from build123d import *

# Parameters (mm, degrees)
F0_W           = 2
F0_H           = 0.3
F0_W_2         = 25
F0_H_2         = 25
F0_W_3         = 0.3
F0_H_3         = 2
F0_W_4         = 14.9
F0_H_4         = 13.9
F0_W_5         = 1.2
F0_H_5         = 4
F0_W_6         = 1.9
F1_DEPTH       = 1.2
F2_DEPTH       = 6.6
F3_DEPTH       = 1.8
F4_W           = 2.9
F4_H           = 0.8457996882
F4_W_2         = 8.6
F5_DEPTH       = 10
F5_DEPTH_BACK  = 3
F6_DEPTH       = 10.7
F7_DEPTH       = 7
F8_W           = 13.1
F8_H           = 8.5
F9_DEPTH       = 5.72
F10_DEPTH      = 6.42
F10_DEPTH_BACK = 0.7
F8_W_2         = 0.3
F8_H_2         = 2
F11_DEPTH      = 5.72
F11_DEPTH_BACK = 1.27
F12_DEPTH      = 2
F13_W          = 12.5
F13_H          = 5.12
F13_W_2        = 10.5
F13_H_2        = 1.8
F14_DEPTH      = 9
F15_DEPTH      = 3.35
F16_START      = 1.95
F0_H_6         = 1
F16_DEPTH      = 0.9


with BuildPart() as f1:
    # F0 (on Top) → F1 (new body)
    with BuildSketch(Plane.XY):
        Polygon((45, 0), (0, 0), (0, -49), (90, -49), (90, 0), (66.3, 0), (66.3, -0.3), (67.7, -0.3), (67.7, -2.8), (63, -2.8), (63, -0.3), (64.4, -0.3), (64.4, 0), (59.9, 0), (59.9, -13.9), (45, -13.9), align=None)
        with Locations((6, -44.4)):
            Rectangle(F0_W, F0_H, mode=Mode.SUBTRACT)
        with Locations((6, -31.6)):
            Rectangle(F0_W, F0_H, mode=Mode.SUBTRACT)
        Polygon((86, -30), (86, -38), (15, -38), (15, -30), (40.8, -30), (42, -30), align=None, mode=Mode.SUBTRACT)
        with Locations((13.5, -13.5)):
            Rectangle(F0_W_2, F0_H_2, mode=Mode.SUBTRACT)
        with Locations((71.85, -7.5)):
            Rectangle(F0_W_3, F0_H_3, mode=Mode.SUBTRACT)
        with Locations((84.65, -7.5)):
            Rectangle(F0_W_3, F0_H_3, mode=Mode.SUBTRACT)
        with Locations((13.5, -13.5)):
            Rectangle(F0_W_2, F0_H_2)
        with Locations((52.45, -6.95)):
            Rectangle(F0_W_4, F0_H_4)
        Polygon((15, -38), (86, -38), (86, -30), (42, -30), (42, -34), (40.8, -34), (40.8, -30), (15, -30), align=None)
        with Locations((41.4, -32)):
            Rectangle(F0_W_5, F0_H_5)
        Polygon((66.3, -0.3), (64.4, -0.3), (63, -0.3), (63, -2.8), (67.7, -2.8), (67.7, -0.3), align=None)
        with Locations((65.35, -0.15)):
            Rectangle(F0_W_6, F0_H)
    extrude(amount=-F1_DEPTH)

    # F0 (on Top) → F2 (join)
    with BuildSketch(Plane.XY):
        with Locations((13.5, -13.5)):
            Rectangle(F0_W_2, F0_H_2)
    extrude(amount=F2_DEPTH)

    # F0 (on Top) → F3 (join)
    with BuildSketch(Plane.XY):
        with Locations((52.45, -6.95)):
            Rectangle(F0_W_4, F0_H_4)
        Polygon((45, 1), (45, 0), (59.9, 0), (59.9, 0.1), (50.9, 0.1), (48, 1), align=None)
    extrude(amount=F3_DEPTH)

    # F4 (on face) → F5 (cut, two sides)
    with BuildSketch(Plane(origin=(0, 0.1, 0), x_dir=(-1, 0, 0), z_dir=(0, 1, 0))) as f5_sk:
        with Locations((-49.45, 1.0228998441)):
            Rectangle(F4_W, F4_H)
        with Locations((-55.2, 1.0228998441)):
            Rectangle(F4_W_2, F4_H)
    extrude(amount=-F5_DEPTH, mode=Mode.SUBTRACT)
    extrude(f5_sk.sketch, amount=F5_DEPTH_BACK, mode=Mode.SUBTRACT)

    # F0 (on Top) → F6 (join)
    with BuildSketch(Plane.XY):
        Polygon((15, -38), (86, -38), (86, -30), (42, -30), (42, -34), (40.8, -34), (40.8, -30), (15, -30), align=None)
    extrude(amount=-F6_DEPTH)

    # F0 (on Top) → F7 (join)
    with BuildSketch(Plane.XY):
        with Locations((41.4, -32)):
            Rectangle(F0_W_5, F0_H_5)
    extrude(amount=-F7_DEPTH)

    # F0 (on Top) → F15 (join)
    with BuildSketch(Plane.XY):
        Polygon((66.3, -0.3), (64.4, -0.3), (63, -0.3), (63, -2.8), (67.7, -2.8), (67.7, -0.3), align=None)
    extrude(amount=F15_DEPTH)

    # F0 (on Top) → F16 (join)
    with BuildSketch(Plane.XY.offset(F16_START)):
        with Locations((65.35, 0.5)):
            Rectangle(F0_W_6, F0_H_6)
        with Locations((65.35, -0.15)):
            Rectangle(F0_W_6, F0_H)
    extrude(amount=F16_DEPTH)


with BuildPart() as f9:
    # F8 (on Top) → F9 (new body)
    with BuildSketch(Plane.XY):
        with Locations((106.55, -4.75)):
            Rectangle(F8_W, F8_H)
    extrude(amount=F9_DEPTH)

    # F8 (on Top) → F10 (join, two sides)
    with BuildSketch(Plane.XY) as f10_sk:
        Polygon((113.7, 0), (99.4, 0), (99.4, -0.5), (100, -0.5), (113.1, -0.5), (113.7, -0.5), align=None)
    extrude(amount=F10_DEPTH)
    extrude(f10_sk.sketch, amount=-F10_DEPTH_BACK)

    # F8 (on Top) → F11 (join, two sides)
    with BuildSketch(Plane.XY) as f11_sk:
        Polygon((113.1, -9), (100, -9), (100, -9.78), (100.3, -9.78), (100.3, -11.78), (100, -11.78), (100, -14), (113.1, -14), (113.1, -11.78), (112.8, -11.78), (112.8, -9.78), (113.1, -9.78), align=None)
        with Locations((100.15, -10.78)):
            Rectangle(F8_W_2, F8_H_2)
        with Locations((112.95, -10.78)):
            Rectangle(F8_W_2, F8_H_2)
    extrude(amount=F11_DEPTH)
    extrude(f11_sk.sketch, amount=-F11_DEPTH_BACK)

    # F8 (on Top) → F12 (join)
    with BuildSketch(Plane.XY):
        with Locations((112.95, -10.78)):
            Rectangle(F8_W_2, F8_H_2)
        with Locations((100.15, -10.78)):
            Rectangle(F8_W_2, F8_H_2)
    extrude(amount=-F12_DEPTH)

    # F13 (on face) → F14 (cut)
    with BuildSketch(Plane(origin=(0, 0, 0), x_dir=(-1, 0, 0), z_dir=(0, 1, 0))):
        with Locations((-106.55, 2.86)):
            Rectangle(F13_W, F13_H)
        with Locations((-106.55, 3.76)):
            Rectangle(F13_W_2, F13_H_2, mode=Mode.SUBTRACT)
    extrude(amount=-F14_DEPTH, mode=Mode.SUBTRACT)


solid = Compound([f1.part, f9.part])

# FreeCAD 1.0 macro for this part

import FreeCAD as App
import Part
import Sketcher

doc = App.newDocument("Part")
params = doc.addObject("Spreadsheet::Sheet", "Params")
for row, (alias, value) in enumerate([
    ("sketch1_width", "90 mm"),
    ("sketch1_width2", "2 mm"),
    ("sketch1_height", "49 mm"),
    ("sketch1_width3", "0.3 mm"),
    ("pad1_length", "1.2 mm"),
    ("sketch2_width", "25 mm"),
    ("pad2_length", "6.6 mm"),
    ("sketch3_width", "9 mm"),
    ("sketch3_width2", "3 mm"),
    ("sketch3_height", "14 mm"),
    ("sketch3_width3", "14.9 mm"),
    ("pad3_length", "1.8 mm"),
    ("sketch4_width", "11.5 mm"),
    ("pocket1_length", "10 mm"),
    ("pocket1_length2", "3 mm"),
    ("sketch5_width", "71 mm"),
    ("sketch5_width2", "44 mm"),
    ("sketch5_height", "8 mm"),
    ("sketch5_height2", "4 mm"),
    ("sketch5_width3", "1.2 mm"),
    ("pad4_length", "10.7 mm"),
    ("sketch6_height", "4 mm"),
    ("sketch6_width", "1.2 mm"),
    ("pad5_length", "7 mm"),
    ("sketch7_width", "4.7 mm"),
    ("sketch7_height", "2.5 mm"),
    ("pad6_length", "3.35 mm"),
    ("sketch8_width", "1.9 mm"),
    ("sketch8_height", "1.3 mm"),
    ("pad7_length", "0.9 mm"),
    ("sketch9_width", "13.1 mm"),
    ("sketch9_height", "8.5 mm"),
    ("pad8_length", "5.72 mm"),
    ("sketch10_width", "14.3 mm"),
    ("sketch10_height", "0.5 mm"),
    ("pad9_length", "6.42 mm"),
    ("pad9_length2", "0.7 mm"),
    ("sketch11_height", "5 mm"),
    ("sketch11_width", "13.1 mm"),
    ("pad10_length", "5.72 mm"),
    ("pad10_length2", "1.27 mm"),
    ("sketch12_height", "2 mm"),
    ("sketch12_width", "0.3 mm"),
    ("pad11_length", "2 mm"),
    ("sketch13_width", "12.5 mm"),
    ("sketch13_width2", "10.5 mm"),
    ("sketch13_height", "1.8 mm"),
    ("sketch13_height2", "5.12 mm"),
    ("pocket2_length", "9 mm"),
], start=1):
    params.set(f"A{row}", alias)
    params.set(f"B{row}", "=" + value)
    params.setAlias(f"B{row}", alias)

body = doc.addObject("PartDesign::Body", "Body")

sketch1 = body.newObject("Sketcher::SketchObject", "Sketch")
sketch1.AttachmentSupport = (doc.getObject("XY_Plane"), [""])
sketch1.MapMode = "FlatFace"
sketch1.addGeometry(Part.LineSegment(App.Vector(0, 0, 0), App.Vector(0, -49, 0)), False)
sketch1.addGeometry(Part.LineSegment(App.Vector(0, -49, 0), App.Vector(90, -49, 0)), False)
sketch1.addGeometry(Part.LineSegment(App.Vector(90, -49, 0), App.Vector(90, 0, 0)), False)
sketch1.addGeometry(Part.LineSegment(App.Vector(90, 0, 0), App.Vector(0, 0, 0)), False)
sketch1.addGeometry(Part.LineSegment(App.Vector(7, -44.55, 0), App.Vector(5, -44.55, 0)), False)
sketch1.addGeometry(Part.LineSegment(App.Vector(5, -44.55, 0), App.Vector(5, -44.25, 0)), False)
sketch1.addGeometry(Part.LineSegment(App.Vector(5, -44.25, 0), App.Vector(7, -44.25, 0)), False)
sketch1.addGeometry(Part.LineSegment(App.Vector(7, -44.25, 0), App.Vector(7, -44.55, 0)), False)
sketch1.addGeometry(Part.LineSegment(App.Vector(7, -31.75, 0), App.Vector(5, -31.75, 0)), False)
sketch1.addGeometry(Part.LineSegment(App.Vector(5, -31.75, 0), App.Vector(5, -31.45, 0)), False)
sketch1.addGeometry(Part.LineSegment(App.Vector(5, -31.45, 0), App.Vector(7, -31.45, 0)), False)
sketch1.addGeometry(Part.LineSegment(App.Vector(7, -31.45, 0), App.Vector(7, -31.75, 0)), False)
sketch1.addGeometry(Part.LineSegment(App.Vector(72, -8.5, 0), App.Vector(71.7, -8.5, 0)), False)
sketch1.addGeometry(Part.LineSegment(App.Vector(71.7, -8.5, 0), App.Vector(71.7, -6.5, 0)), False)
sketch1.addGeometry(Part.LineSegment(App.Vector(71.7, -6.5, 0), App.Vector(72, -6.5, 0)), False)
sketch1.addGeometry(Part.LineSegment(App.Vector(72, -6.5, 0), App.Vector(72, -8.5, 0)), False)
sketch1.addGeometry(Part.LineSegment(App.Vector(84.8, -8.5, 0), App.Vector(84.5, -8.5, 0)), False)
sketch1.addGeometry(Part.LineSegment(App.Vector(84.5, -8.5, 0), App.Vector(84.5, -6.5, 0)), False)
sketch1.addGeometry(Part.LineSegment(App.Vector(84.5, -6.5, 0), App.Vector(84.8, -6.5, 0)), False)
sketch1.addGeometry(Part.LineSegment(App.Vector(84.8, -6.5, 0), App.Vector(84.8, -8.5, 0)), False)
sketch1.addConstraint(Sketcher.Constraint("Coincident", 0, 2, 1, 1))
sketch1.addConstraint(Sketcher.Constraint("Coincident", 1, 2, 2, 1))
sketch1.addConstraint(Sketcher.Constraint("Coincident", 2, 2, 3, 1))
sketch1.addConstraint(Sketcher.Constraint("Coincident", 3, 2, 0, 1))
sketch1.addConstraint(Sketcher.Constraint("Coincident", 4, 2, 5, 1))
sketch1.addConstraint(Sketcher.Constraint("Coincident", 5, 2, 6, 1))
sketch1.addConstraint(Sketcher.Constraint("Coincident", 6, 2, 7, 1))
sketch1.addConstraint(Sketcher.Constraint("Coincident", 7, 2, 4, 1))
sketch1.addConstraint(Sketcher.Constraint("Coincident", 8, 2, 9, 1))
sketch1.addConstraint(Sketcher.Constraint("Coincident", 9, 2, 10, 1))
sketch1.addConstraint(Sketcher.Constraint("Coincident", 10, 2, 11, 1))
sketch1.addConstraint(Sketcher.Constraint("Coincident", 11, 2, 8, 1))
sketch1.addConstraint(Sketcher.Constraint("Coincident", 12, 2, 13, 1))
sketch1.addConstraint(Sketcher.Constraint("Coincident", 13, 2, 14, 1))
sketch1.addConstraint(Sketcher.Constraint("Coincident", 14, 2, 15, 1))
sketch1.addConstraint(Sketcher.Constraint("Coincident", 15, 2, 12, 1))
sketch1.addConstraint(Sketcher.Constraint("Coincident", 16, 2, 17, 1))
sketch1.addConstraint(Sketcher.Constraint("Coincident", 17, 2, 18, 1))
sketch1.addConstraint(Sketcher.Constraint("Coincident", 18, 2, 19, 1))
sketch1.addConstraint(Sketcher.Constraint("Coincident", 19, 2, 16, 1))
sketch1.addConstraint(Sketcher.Constraint("Vertical", 0))
sketch1.addConstraint(Sketcher.Constraint("Horizontal", 1))
sketch1.addConstraint(Sketcher.Constraint("Vertical", 2))
sketch1.addConstraint(Sketcher.Constraint("Horizontal", 3))
sketch1.addConstraint(Sketcher.Constraint("Horizontal", 4))
sketch1.addConstraint(Sketcher.Constraint("Vertical", 5))
sketch1.addConstraint(Sketcher.Constraint("Horizontal", 6))
sketch1.addConstraint(Sketcher.Constraint("Vertical", 7))
sketch1.addConstraint(Sketcher.Constraint("Horizontal", 8))
sketch1.addConstraint(Sketcher.Constraint("Vertical", 9))
sketch1.addConstraint(Sketcher.Constraint("Horizontal", 10))
sketch1.addConstraint(Sketcher.Constraint("Vertical", 11))
sketch1.addConstraint(Sketcher.Constraint("Horizontal", 12))
sketch1.addConstraint(Sketcher.Constraint("Vertical", 13))
sketch1.addConstraint(Sketcher.Constraint("Horizontal", 14))
sketch1.addConstraint(Sketcher.Constraint("Vertical", 15))
sketch1.addConstraint(Sketcher.Constraint("Horizontal", 16))
sketch1.addConstraint(Sketcher.Constraint("Vertical", 17))
sketch1.addConstraint(Sketcher.Constraint("Horizontal", 18))
sketch1.addConstraint(Sketcher.Constraint("Vertical", 19))
sketch1.addConstraint(Sketcher.Constraint("Coincident", 3, 2, -1, 1))
sketch1.addConstraint(Sketcher.Constraint("Horizontal", 15, 2, 16, 2))
sketch1.addConstraint(Sketcher.Constraint("Horizontal", 14, 2, 17, 2))
sketch1.addConstraint(Sketcher.Constraint("Vertical", 5, 2, 8, 2))
sketch1.addConstraint(Sketcher.Constraint("Vertical", 7, 2, 10, 2))
sketch1.addConstraint(Sketcher.Constraint("Equal", 14, 16))
sketch1.addConstraint(Sketcher.Constraint("Equal", 18, 5))
sketch1.addConstraint(Sketcher.Constraint("Equal", 7, 9))
sketch1.addConstraint(Sketcher.Constraint("Equal", 10, 13))
sketch1.addConstraint(Sketcher.Constraint("DistanceX", 1, 1, 1, 2, 90.0))
sketch1.addConstraint(Sketcher.Constraint("DistanceX", 4, 2, 4, 1, 2.0))
sketch1.addConstraint(Sketcher.Constraint("DistanceY", 0, 2, 0, 1, 49.0))
sketch1.addConstraint(Sketcher.Constraint("DistanceX", 12, 2, 12, 1, 0.3))
sketch1.addConstraint(Sketcher.Constraint("DistanceX", -1, 1, 4, 2, 5.0))
sketch1.addConstraint(Sketcher.Constraint("DistanceX", -1, 1, 14, 2, 72.0))
sketch1.addConstraint(Sketcher.Constraint("DistanceY", 12, 2, -1, 1, 8.5))
sketch1.addConstraint(Sketcher.Constraint("DistanceX", -1, 1, 16, 2, 84.5))
sketch1.addConstraint(Sketcher.Constraint("DistanceY", 5, 2, 8, 2, 12.5))
sketch1.addConstraint(Sketcher.Constraint("DistanceY", 4, 2, -1, 1, 44.55))
sketch1.setExpression("Constraints[49]", "Params.sketch1_width")
sketch1.setExpression("Constraints[50]", "Params.sketch1_width2")
sketch1.setExpression("Constraints[51]", "Params.sketch1_height")
sketch1.setExpression("Constraints[52]", "Params.sketch1_width3")
pad1 = body.newObject("PartDesign::Pad", "Pad")
pad1.Profile = sketch1
pad1.setExpression("Length", "Params.pad1_length")
pad1.Reversed = True

sketch2 = body.newObject("Sketcher::SketchObject", "Sketch001")
sketch2.AttachmentSupport = (doc.getObject("XY_Plane"), [""])
sketch2.MapMode = "FlatFace"
sketch2.addGeometry(Part.LineSegment(App.Vector(1, -1, 0), App.Vector(1, -26, 0)), False)
sketch2.addGeometry(Part.LineSegment(App.Vector(1, -26, 0), App.Vector(26, -26, 0)), False)
sketch2.addGeometry(Part.LineSegment(App.Vector(26, -26, 0), App.Vector(26, -1, 0)), False)
sketch2.addGeometry(Part.LineSegment(App.Vector(26, -1, 0), App.Vector(1, -1, 0)), False)
sketch2.addConstraint(Sketcher.Constraint("Coincident", 0, 2, 1, 1))
sketch2.addConstraint(Sketcher.Constraint("Coincident", 1, 2, 2, 1))
sketch2.addConstraint(Sketcher.Constraint("Coincident", 2, 2, 3, 1))
sketch2.addConstraint(Sketcher.Constraint("Coincident", 3, 2, 0, 1))
sketch2.addConstraint(Sketcher.Constraint("Vertical", 0))
sketch2.addConstraint(Sketcher.Constraint("Horizontal", 1))
sketch2.addConstraint(Sketcher.Constraint("Vertical", 2))
sketch2.addConstraint(Sketcher.Constraint("Horizontal", 3))
sketch2.addConstraint(Sketcher.Constraint("Equal", 3, 0))
sketch2.addConstraint(Sketcher.Constraint("DistanceX", 1, 1, 1, 2, 25.0))
sketch2.addConstraint(Sketcher.Constraint("DistanceX", -1, 1, 0, 2, 1.0))
sketch2.addConstraint(Sketcher.Constraint("DistanceY", 0, 2, -1, 1, 26.0))
sketch2.setExpression("Constraints[9]", "Params.sketch2_width")
pad2 = body.newObject("PartDesign::Pad", "Pad001")
pad2.Profile = sketch2
pad2.setExpression("Length", "Params.pad2_length")

sketch3 = body.newObject("Sketcher::SketchObject", "Sketch002")
sketch3.AttachmentSupport = (doc.getObject("XY_Plane"), [""])
sketch3.MapMode = "FlatFace"
sketch3.addGeometry(Part.LineSegment(App.Vector(45, -13.9, 0), App.Vector(59.9, -13.9, 0)), False)
sketch3.addGeometry(Part.LineSegment(App.Vector(59.9, -13.9, 0), App.Vector(59.9, 0.1, 0)), False)
sketch3.addGeometry(Part.LineSegment(App.Vector(59.9, 0.1, 0), App.Vector(50.9, 0.1, 0)), False)
sketch3.addGeometry(Part.LineSegment(App.Vector(50.9, 0.1, 0), App.Vector(48, 1, 0)), False)
sketch3.addGeometry(Part.LineSegment(App.Vector(48, 1, 0), App.Vector(45, 1, 0)), False)
sketch3.addGeometry(Part.LineSegment(App.Vector(45, 1, 0), App.Vector(45, -13.9, 0)), False)
sketch3.addConstraint(Sketcher.Constraint("Coincident", 0, 2, 1, 1))
sketch3.addConstraint(Sketcher.Constraint("Coincident", 1, 2, 2, 1))
sketch3.addConstraint(Sketcher.Constraint("Coincident", 2, 2, 3, 1))
sketch3.addConstraint(Sketcher.Constraint("Coincident", 3, 2, 4, 1))
sketch3.addConstraint(Sketcher.Constraint("Coincident", 4, 2, 5, 1))
sketch3.addConstraint(Sketcher.Constraint("Coincident", 5, 2, 0, 1))
sketch3.addConstraint(Sketcher.Constraint("Horizontal", 0))
sketch3.addConstraint(Sketcher.Constraint("Vertical", 1))
sketch3.addConstraint(Sketcher.Constraint("Horizontal", 2))
sketch3.addConstraint(Sketcher.Constraint("Horizontal", 4))
sketch3.addConstraint(Sketcher.Constraint("Vertical", 5))
sketch3.addConstraint(Sketcher.Constraint("Equal", 0, 5))
sketch3.addConstraint(Sketcher.Constraint("DistanceX", 2, 2, 2, 1, 9.0))
sketch3.addConstraint(Sketcher.Constraint("DistanceX", 4, 2, 4, 1, 3.0))
sketch3.addConstraint(Sketcher.Constraint("DistanceY", 1, 1, 1, 2, 14.0))
sketch3.addConstraint(Sketcher.Constraint("DistanceX", 0, 1, 0, 2, 14.9))
sketch3.addConstraint(Sketcher.Constraint("DistanceX", -1, 1, 3, 2, 48.0))
sketch3.addConstraint(Sketcher.Constraint("DistanceY", -1, 1, 3, 2, 1.0))
sketch3.setExpression("Constraints[12]", "Params.sketch3_width")
sketch3.setExpression("Constraints[13]", "Params.sketch3_width2")
sketch3.setExpression("Constraints[14]", "Params.sketch3_height")
sketch3.setExpression("Constraints[15]", "Params.sketch3_width3")
pad3 = body.newObject("PartDesign::Pad", "Pad002")
pad3.Profile = sketch3
pad3.setExpression("Length", "Params.pad3_length")

sketch4 = body.newObject("Sketcher::SketchObject", "Sketch003")
sketch4.AttachmentSupport = (doc.getObject("XZ_Plane"), [""])
sketch4.MapMode = "FlatFace"
sketch4.AttachmentOffset = App.Placement(App.Vector(0, 0, -0.1), App.Rotation())
sketch4.addGeometry(Part.LineSegment(App.Vector(48, 0.6, 0), App.Vector(48, 1.4, 0)), False)
sketch4.addGeometry(Part.LineSegment(App.Vector(48, 1.4, 0), App.Vector(59.5, 1.4, 0)), False)
sketch4.addGeometry(Part.LineSegment(App.Vector(59.5, 1.4, 0), App.Vector(59.5, 0.6, 0)), False)
sketch4.addGeometry(Part.LineSegment(App.Vector(59.5, 0.6, 0), App.Vector(48, 0.6, 0)), False)
sketch4.addConstraint(Sketcher.Constraint("Coincident", 0, 2, 1, 1))
sketch4.addConstraint(Sketcher.Constraint("Coincident", 1, 2, 2, 1))
sketch4.addConstraint(Sketcher.Constraint("Coincident", 2, 2, 3, 1))
sketch4.addConstraint(Sketcher.Constraint("Coincident", 3, 2, 0, 1))
sketch4.addConstraint(Sketcher.Constraint("Vertical", 0))
sketch4.addConstraint(Sketcher.Constraint("Horizontal", 1))
sketch4.addConstraint(Sketcher.Constraint("Vertical", 2))
sketch4.addConstraint(Sketcher.Constraint("Horizontal", 3))
sketch4.addConstraint(Sketcher.Constraint("DistanceX", 1, 1, 1, 2, 11.5))
sketch4.addConstraint(Sketcher.Constraint("DistanceX", -1, 1, 0, 2, 48.0))
sketch4.addConstraint(Sketcher.Constraint("DistanceY", -1, 1, 2, 2, 0.6))
sketch4.addConstraint(Sketcher.Constraint("DistanceY", 0, 1, 0, 2, 0.8458))
sketch4.setExpression("Constraints[8]", "Params.sketch4_width")
pocket1 = body.newObject("PartDesign::Pocket", "Pocket")
pocket1.Profile = sketch4
pocket1.Type = "TwoLengths"
pocket1.setExpression("Length", "Params.pocket1_length")
pocket1.setExpression("Length2", "Params.pocket1_length2")
pocket1.Reversed = True

sketch5 = body.newObject("Sketcher::SketchObject", "Sketch004")
sketch5.AttachmentSupport = (doc.getObject("XY_Plane"), [""])
sketch5.MapMode = "FlatFace"
sketch5.addGeometry(Part.LineSegment(App.Vector(15, -38, 0), App.Vector(86, -38, 0)), False)
sketch5.addGeometry(Part.LineSegment(App.Vector(86, -38, 0), App.Vector(86, -30, 0)), False)
sketch5.addGeometry(Part.LineSegment(App.Vector(86, -30, 0), App.Vector(42, -30, 0)), False)
sketch5.addGeometry(Part.LineSegment(App.Vector(42, -30, 0), App.Vector(42, -34, 0)), False)
sketch5.addGeometry(Part.LineSegment(App.Vector(42, -34, 0), App.Vector(40.8, -34, 0)), False)
sketch5.addGeometry(Part.LineSegment(App.Vector(40.8, -34, 0), App.Vector(40.8, -30, 0)), False)
sketch5.addGeometry(Part.LineSegment(App.Vector(40.8, -30, 0), App.Vector(15, -30, 0)), False)
sketch5.addGeometry(Part.LineSegment(App.Vector(15, -30, 0), App.Vector(15, -38, 0)), False)
sketch5.addConstraint(Sketcher.Constraint("Coincident", 0, 2, 1, 1))
sketch5.addConstraint(Sketcher.Constraint("Coincident", 1, 2, 2, 1))
sketch5.addConstraint(Sketcher.Constraint("Coincident", 2, 2, 3, 1))
sketch5.addConstraint(Sketcher.Constraint("Coincident", 3, 2, 4, 1))
sketch5.addConstraint(Sketcher.Constraint("Coincident", 4, 2, 5, 1))
sketch5.addConstraint(Sketcher.Constraint("Coincident", 5, 2, 6, 1))
sketch5.addConstraint(Sketcher.Constraint("Coincident", 6, 2, 7, 1))
sketch5.addConstraint(Sketcher.Constraint("Coincident", 7, 2, 0, 1))
sketch5.addConstraint(Sketcher.Constraint("Horizontal", 0))
sketch5.addConstraint(Sketcher.Constraint("Vertical", 1))
sketch5.addConstraint(Sketcher.Constraint("Horizontal", 2))
sketch5.addConstraint(Sketcher.Constraint("Vertical", 3))
sketch5.addConstraint(Sketcher.Constraint("Horizontal", 4))
sketch5.addConstraint(Sketcher.Constraint("Vertical", 5))
sketch5.addConstraint(Sketcher.Constraint("Horizontal", 6))
sketch5.addConstraint(Sketcher.Constraint("Vertical", 7))
sketch5.addConstraint(Sketcher.Constraint("Horizontal", 2, 2, 5, 2))
sketch5.addConstraint(Sketcher.Constraint("DistanceX", 0, 1, 0, 2, 71.0))
sketch5.addConstraint(Sketcher.Constraint("DistanceX", 2, 2, 2, 1, 44.0))
sketch5.addConstraint(Sketcher.Constraint("DistanceY", 1, 1, 1, 2, 8.0))
sketch5.addConstraint(Sketcher.Constraint("DistanceY", 3, 2, 3, 1, 4.0))
sketch5.addConstraint(Sketcher.Constraint("DistanceX", 4, 2, 4, 1, 1.2))
sketch5.addConstraint(Sketcher.Constraint("DistanceX", -1, 1, 0, 2, 86.0))
sketch5.addConstraint(Sketcher.Constraint("DistanceY", 0, 2, -1, 1, 38.0))
sketch5.setExpression("Constraints[17]", "Params.sketch5_width")
sketch5.setExpression("Constraints[18]", "Params.sketch5_width2")
sketch5.setExpression("Constraints[19]", "Params.sketch5_height")
sketch5.setExpression("Constraints[20]", "Params.sketch5_height2")
sketch5.setExpression("Constraints[21]", "Params.sketch5_width3")
pad4 = body.newObject("PartDesign::Pad", "Pad003")
pad4.Profile = sketch5
pad4.setExpression("Length", "Params.pad4_length")
pad4.Reversed = True

sketch6 = body.newObject("Sketcher::SketchObject", "Sketch005")
sketch6.AttachmentSupport = (doc.getObject("XY_Plane"), [""])
sketch6.MapMode = "FlatFace"
sketch6.addGeometry(Part.LineSegment(App.Vector(40.8, -30, 0), App.Vector(40.8, -34, 0)), False)
sketch6.addGeometry(Part.LineSegment(App.Vector(40.8, -34, 0), App.Vector(42, -34, 0)), False)
sketch6.addGeometry(Part.LineSegment(App.Vector(42, -34, 0), App.Vector(42, -30, 0)), False)
sketch6.addGeometry(Part.LineSegment(App.Vector(42, -30, 0), App.Vector(40.8, -30, 0)), False)
sketch6.addConstraint(Sketcher.Constraint("Coincident", 0, 2, 1, 1))
sketch6.addConstraint(Sketcher.Constraint("Coincident", 1, 2, 2, 1))
sketch6.addConstraint(Sketcher.Constraint("Coincident", 2, 2, 3, 1))
sketch6.addConstraint(Sketcher.Constraint("Coincident", 3, 2, 0, 1))
sketch6.addConstraint(Sketcher.Constraint("Vertical", 0))
sketch6.addConstraint(Sketcher.Constraint("Horizontal", 1))
sketch6.addConstraint(Sketcher.Constraint("Vertical", 2))
sketch6.addConstraint(Sketcher.Constraint("Horizontal", 3))
sketch6.addConstraint(Sketcher.Constraint("DistanceY", 0, 2, 0, 1, 4.0))
sketch6.addConstraint(Sketcher.Constraint("DistanceX", 1, 1, 1, 2, 1.2))
sketch6.addConstraint(Sketcher.Constraint("DistanceY", 0, 2, -1, 1, 34.0))
sketch6.addConstraint(Sketcher.Constraint("DistanceX", -1, 1, 1, 2, 42.0))
sketch6.setExpression("Constraints[8]", "Params.sketch6_height")
sketch6.setExpression("Constraints[9]", "Params.sketch6_width")
pad5 = body.newObject("PartDesign::Pad", "Pad004")
pad5.Profile = sketch6
pad5.setExpression("Length", "Params.pad5_length")
pad5.Reversed = True

sketch7 = body.newObject("Sketcher::SketchObject", "Sketch006")
sketch7.AttachmentSupport = (doc.getObject("XY_Plane"), [""])
sketch7.MapMode = "FlatFace"
sketch7.addGeometry(Part.LineSegment(App.Vector(63, -0.3, 0), App.Vector(63, -2.8, 0)), False)
sketch7.addGeometry(Part.LineSegment(App.Vector(63, -2.8, 0), App.Vector(67.7, -2.8, 0)), False)
sketch7.addGeometry(Part.LineSegment(App.Vector(67.7, -2.8, 0), App.Vector(67.7, -0.3, 0)), False)
sketch7.addGeometry(Part.LineSegment(App.Vector(67.7, -0.3, 0), App.Vector(63, -0.3, 0)), False)
sketch7.addConstraint(Sketcher.Constraint("Coincident", 0, 2, 1, 1))
sketch7.addConstraint(Sketcher.Constraint("Coincident", 1, 2, 2, 1))
sketch7.addConstraint(Sketcher.Constraint("Coincident", 2, 2, 3, 1))
sketch7.addConstraint(Sketcher.Constraint("Coincident", 3, 2, 0, 1))
sketch7.addConstraint(Sketcher.Constraint("Vertical", 0))
sketch7.addConstraint(Sketcher.Constraint("Horizontal", 1))
sketch7.addConstraint(Sketcher.Constraint("Vertical", 2))
sketch7.addConstraint(Sketcher.Constraint("Horizontal", 3))
sketch7.addConstraint(Sketcher.Constraint("DistanceX", 1, 1, 1, 2, 4.7))
sketch7.addConstraint(Sketcher.Constraint("DistanceY", 0, 2, 0, 1, 2.5))
sketch7.addConstraint(Sketcher.Constraint("DistanceX", -1, 1, 0, 2, 63.0))
sketch7.addConstraint(Sketcher.Constraint("DistanceY", 0, 2, -1, 1, 2.8))
sketch7.setExpression("Constraints[8]", "Params.sketch7_width")
sketch7.setExpression("Constraints[9]", "Params.sketch7_height")
pad6 = body.newObject("PartDesign::Pad", "Pad005")
pad6.Profile = sketch7
pad6.setExpression("Length", "Params.pad6_length")

sketch8 = body.newObject("Sketcher::SketchObject", "Sketch007")
sketch8.AttachmentSupport = (doc.getObject("XY_Plane"), [""])
sketch8.MapMode = "FlatFace"
sketch8.AttachmentOffset = App.Placement(App.Vector(0, 0, 1.95), App.Rotation())
sketch8.addGeometry(Part.LineSegment(App.Vector(64.4, 1, 0), App.Vector(64.4, -0.3, 0)), False)
sketch8.addGeometry(Part.LineSegment(App.Vector(64.4, -0.3, 0), App.Vector(66.3, -0.3, 0)), False)
sketch8.addGeometry(Part.LineSegment(App.Vector(66.3, -0.3, 0), App.Vector(66.3, 1, 0)), False)
sketch8.addGeometry(Part.LineSegment(App.Vector(66.3, 1, 0), App.Vector(64.4, 1, 0)), False)
sketch8.addConstraint(Sketcher.Constraint("Coincident", 0, 2, 1, 1))
sketch8.addConstraint(Sketcher.Constraint("Coincident", 1, 2, 2, 1))
sketch8.addConstraint(Sketcher.Constraint("Coincident", 2, 2, 3, 1))
sketch8.addConstraint(Sketcher.Constraint("Coincident", 3, 2, 0, 1))
sketch8.addConstraint(Sketcher.Constraint("Vertical", 0))
sketch8.addConstraint(Sketcher.Constraint("Horizontal", 1))
sketch8.addConstraint(Sketcher.Constraint("Vertical", 2))
sketch8.addConstraint(Sketcher.Constraint("Horizontal", 3))
sketch8.addConstraint(Sketcher.Constraint("DistanceX", 1, 1, 1, 2, 1.9))
sketch8.addConstraint(Sketcher.Constraint("DistanceY", 0, 2, 0, 1, 1.3))
sketch8.addConstraint(Sketcher.Constraint("DistanceY", -1, 1, 2, 2, 1.0))
sketch8.addConstraint(Sketcher.Constraint("DistanceX", -1, 1, 0, 2, 64.4))
sketch8.setExpression("Constraints[8]", "Params.sketch8_width")
sketch8.setExpression("Constraints[9]", "Params.sketch8_height")
pad7 = body.newObject("PartDesign::Pad", "Pad006")
pad7.Profile = sketch8
pad7.setExpression("Length", "Params.pad7_length")
body2 = doc.addObject("PartDesign::Body", "Body001")

sketch9 = body2.newObject("Sketcher::SketchObject", "Sketch008")
sketch9.AttachmentSupport = (doc.getObject("XY_Plane001"), [""])
sketch9.MapMode = "FlatFace"
sketch9.addGeometry(Part.LineSegment(App.Vector(100, 0, 0), App.Vector(100, -9, 0)), False)
sketch9.addGeometry(Part.LineSegment(App.Vector(100, -9, 0), App.Vector(113, -9, 0)), False)
sketch9.addGeometry(Part.LineSegment(App.Vector(113, -9, 0), App.Vector(113, 0, 0)), False)
sketch9.addGeometry(Part.LineSegment(App.Vector(113, 0, 0), App.Vector(100, 0, 0)), False)
sketch9.addConstraint(Sketcher.Constraint("Coincident", 0, 2, 1, 1))
sketch9.addConstraint(Sketcher.Constraint("Coincident", 1, 2, 2, 1))
sketch9.addConstraint(Sketcher.Constraint("Coincident", 2, 2, 3, 1))
sketch9.addConstraint(Sketcher.Constraint("Coincident", 3, 2, 0, 1))
sketch9.addConstraint(Sketcher.Constraint("Vertical", 0))
sketch9.addConstraint(Sketcher.Constraint("Horizontal", 1))
sketch9.addConstraint(Sketcher.Constraint("Vertical", 2))
sketch9.addConstraint(Sketcher.Constraint("Horizontal", 3))
sketch9.addConstraint(Sketcher.Constraint("DistanceX", 1, 1, 1, 2, 13.1))
sketch9.addConstraint(Sketcher.Constraint("DistanceY", 0, 2, 0, 1, 8.5))
sketch9.addConstraint(Sketcher.Constraint("DistanceX", -1, 1, 0, 2, 100.0))
sketch9.addConstraint(Sketcher.Constraint("DistanceY", 0, 2, -1, 1, 9.0))
sketch9.setExpression("Constraints[8]", "Params.sketch9_width")
sketch9.setExpression("Constraints[9]", "Params.sketch9_height")
pad8 = body2.newObject("PartDesign::Pad", "Pad007")
pad8.Profile = sketch9
pad8.setExpression("Length", "Params.pad8_length")

sketch10 = body2.newObject("Sketcher::SketchObject", "Sketch009")
sketch10.AttachmentSupport = (doc.getObject("XY_Plane001"), [""])
sketch10.MapMode = "FlatFace"
sketch10.addGeometry(Part.LineSegment(App.Vector(113.7, 0, 0), App.Vector(99.4, 0, 0)), False)
sketch10.addGeometry(Part.LineSegment(App.Vector(99.4, 0, 0), App.Vector(99.4, -0.5, 0)), False)
sketch10.addGeometry(Part.LineSegment(App.Vector(99.4, -0.5, 0), App.Vector(113.7, -0.5, 0)), False)
sketch10.addGeometry(Part.LineSegment(App.Vector(113.7, -0.5, 0), App.Vector(113.7, 0, 0)), False)
sketch10.addConstraint(Sketcher.Constraint("Coincident", 0, 2, 1, 1))
sketch10.addConstraint(Sketcher.Constraint("Coincident", 1, 2, 2, 1))
sketch10.addConstraint(Sketcher.Constraint("Coincident", 2, 2, 3, 1))
sketch10.addConstraint(Sketcher.Constraint("Coincident", 3, 2, 0, 1))
sketch10.addConstraint(Sketcher.Constraint("Horizontal", 0))
sketch10.addConstraint(Sketcher.Constraint("Vertical", 1))
sketch10.addConstraint(Sketcher.Constraint("Horizontal", 2))
sketch10.addConstraint(Sketcher.Constraint("Vertical", 3))
sketch10.addConstraint(Sketcher.Constraint("PointOnObject", 0, 2, -1))
sketch10.addConstraint(Sketcher.Constraint("DistanceX", 0, 2, 0, 1, 14.3))
sketch10.addConstraint(Sketcher.Constraint("DistanceY", 1, 2, 1, 1, 0.5))
sketch10.addConstraint(Sketcher.Constraint("DistanceX", -1, 1, 0, 2, 99.4))
sketch10.setExpression("Constraints[9]", "Params.sketch10_width")
sketch10.setExpression("Constraints[10]", "Params.sketch10_height")
pad9 = body2.newObject("PartDesign::Pad", "Pad008")
pad9.Profile = sketch10
pad9.Type = "TwoLengths"
pad9.setExpression("Length", "Params.pad9_length")
pad9.setExpression("Length2", "Params.pad9_length2")

sketch11 = body2.newObject("Sketcher::SketchObject", "Sketch010")
sketch11.AttachmentSupport = (doc.getObject("XY_Plane001"), [""])
sketch11.MapMode = "FlatFace"
sketch11.addGeometry(Part.LineSegment(App.Vector(113, -9, 0), App.Vector(100, -9, 0)), False)
sketch11.addGeometry(Part.LineSegment(App.Vector(100, -9, 0), App.Vector(100, -14, 0)), False)
sketch11.addGeometry(Part.LineSegment(App.Vector(100, -14, 0), App.Vector(113, -14, 0)), False)
sketch11.addGeometry(Part.LineSegment(App.Vector(113, -14, 0), App.Vector(113, -9, 0)), False)
sketch11.addConstraint(Sketcher.Constraint("Coincident", 0, 2, 1, 1))
sketch11.addConstraint(Sketcher.Constraint("Coincident", 1, 2, 2, 1))
sketch11.addConstraint(Sketcher.Constraint("Coincident", 2, 2, 3, 1))
sketch11.addConstraint(Sketcher.Constraint("Coincident", 3, 2, 0, 1))
sketch11.addConstraint(Sketcher.Constraint("Horizontal", 0))
sketch11.addConstraint(Sketcher.Constraint("Vertical", 1))
sketch11.addConstraint(Sketcher.Constraint("Horizontal", 2))
sketch11.addConstraint(Sketcher.Constraint("Vertical", 3))
sketch11.addConstraint(Sketcher.Constraint("DistanceY", 1, 2, 1, 1, 5.0))
sketch11.addConstraint(Sketcher.Constraint("DistanceX", 0, 2, 0, 1, 13.1))
sketch11.addConstraint(Sketcher.Constraint("DistanceX", -1, 1, 0, 2, 100.0))
sketch11.addConstraint(Sketcher.Constraint("DistanceY", 0, 2, -1, 1, 9.0))
sketch11.setExpression("Constraints[8]", "Params.sketch11_height")
sketch11.setExpression("Constraints[9]", "Params.sketch11_width")
pad10 = body2.newObject("PartDesign::Pad", "Pad009")
pad10.Profile = sketch11
pad10.Type = "TwoLengths"
pad10.setExpression("Length", "Params.pad10_length")
pad10.setExpression("Length2", "Params.pad10_length2")

sketch12 = body2.newObject("Sketcher::SketchObject", "Sketch011")
sketch12.AttachmentSupport = (doc.getObject("XY_Plane001"), [""])
sketch12.MapMode = "FlatFace"
sketch12.addGeometry(Part.LineSegment(App.Vector(112.8, -9.78, 0), App.Vector(112.8, -11.78, 0)), False)
sketch12.addGeometry(Part.LineSegment(App.Vector(112.8, -11.78, 0), App.Vector(113.1, -11.78, 0)), False)
sketch12.addGeometry(Part.LineSegment(App.Vector(113.1, -11.78, 0), App.Vector(113.1, -9.78, 0)), False)
sketch12.addGeometry(Part.LineSegment(App.Vector(113.1, -9.78, 0), App.Vector(112.8, -9.78, 0)), False)
sketch12.addGeometry(Part.LineSegment(App.Vector(100, -9.78, 0), App.Vector(100, -11.78, 0)), False)
sketch12.addGeometry(Part.LineSegment(App.Vector(100, -11.78, 0), App.Vector(100.3, -11.78, 0)), False)
sketch12.addGeometry(Part.LineSegment(App.Vector(100.3, -11.78, 0), App.Vector(100.3, -9.78, 0)), False)
sketch12.addGeometry(Part.LineSegment(App.Vector(100.3, -9.78, 0), App.Vector(100, -9.78, 0)), False)
sketch12.addConstraint(Sketcher.Constraint("Coincident", 0, 2, 1, 1))
sketch12.addConstraint(Sketcher.Constraint("Coincident", 1, 2, 2, 1))
sketch12.addConstraint(Sketcher.Constraint("Coincident", 2, 2, 3, 1))
sketch12.addConstraint(Sketcher.Constraint("Coincident", 3, 2, 0, 1))
sketch12.addConstraint(Sketcher.Constraint("Coincident", 4, 2, 5, 1))
sketch12.addConstraint(Sketcher.Constraint("Coincident", 5, 2, 6, 1))
sketch12.addConstraint(Sketcher.Constraint("Coincident", 6, 2, 7, 1))
sketch12.addConstraint(Sketcher.Constraint("Coincident", 7, 2, 4, 1))
sketch12.addConstraint(Sketcher.Constraint("Vertical", 0))
sketch12.addConstraint(Sketcher.Constraint("Horizontal", 1))
sketch12.addConstraint(Sketcher.Constraint("Vertical", 2))
sketch12.addConstraint(Sketcher.Constraint("Horizontal", 3))
sketch12.addConstraint(Sketcher.Constraint("Vertical", 4))
sketch12.addConstraint(Sketcher.Constraint("Horizontal", 5))
sketch12.addConstraint(Sketcher.Constraint("Vertical", 6))
sketch12.addConstraint(Sketcher.Constraint("Horizontal", 7))
sketch12.addConstraint(Sketcher.Constraint("Horizontal", 1, 2, 4, 2))
sketch12.addConstraint(Sketcher.Constraint("Horizontal", 3, 2, 6, 2))
sketch12.addConstraint(Sketcher.Constraint("Equal", 3, 5))
sketch12.addConstraint(Sketcher.Constraint("DistanceY", 0, 2, 0, 1, 2.0))
sketch12.addConstraint(Sketcher.Constraint("DistanceX", 1, 1, 1, 2, 0.3))
sketch12.addConstraint(Sketcher.Constraint("DistanceX", -1, 1, 4, 2, 100.0))
sketch12.addConstraint(Sketcher.Constraint("DistanceX", -1, 1, 0, 2, 112.8))
sketch12.addConstraint(Sketcher.Constraint("DistanceY", 0, 2, -1, 1, 11.78))
sketch12.setExpression("Constraints[19]", "Params.sketch12_height")
sketch12.setExpression("Constraints[20]", "Params.sketch12_width")
pad11 = body2.newObject("PartDesign::Pad", "Pad010")
pad11.Profile = sketch12
pad11.setExpression("Length", "Params.pad11_length")
pad11.Reversed = True

sketch13 = body2.newObject("Sketcher::SketchObject", "Sketch012")
sketch13.AttachmentSupport = (doc.getObject("XZ_Plane001"), [""])
sketch13.MapMode = "FlatFace"
sketch13.addGeometry(Part.LineSegment(App.Vector(112.8, 5.4, 0), App.Vector(112.8, 0.3, 0)), False)
sketch13.addGeometry(Part.LineSegment(App.Vector(112.8, 0.3, 0), App.Vector(100.3, 0.3, 0)), False)
sketch13.addGeometry(Part.LineSegment(App.Vector(100.3, 0.3, 0), App.Vector(100.3, 5.4, 0)), False)
sketch13.addGeometry(Part.LineSegment(App.Vector(100.3, 5.4, 0), App.Vector(112.8, 5.4, 0)), False)
sketch13.addGeometry(Part.LineSegment(App.Vector(101.3, 2.9, 0), App.Vector(111.8, 2.9, 0)), False)
sketch13.addGeometry(Part.LineSegment(App.Vector(111.8, 2.9, 0), App.Vector(111.8, 4.7, 0)), False)
sketch13.addGeometry(Part.LineSegment(App.Vector(111.8, 4.7, 0), App.Vector(101.3, 4.7, 0)), False)
sketch13.addGeometry(Part.LineSegment(App.Vector(101.3, 4.7, 0), App.Vector(101.3, 2.9, 0)), False)
sketch13.addConstraint(Sketcher.Constraint("Coincident", 0, 2, 1, 1))
sketch13.addConstraint(Sketcher.Constraint("Coincident", 1, 2, 2, 1))
sketch13.addConstraint(Sketcher.Constraint("Coincident", 2, 2, 3, 1))
sketch13.addConstraint(Sketcher.Constraint("Coincident", 3, 2, 0, 1))
sketch13.addConstraint(Sketcher.Constraint("Coincident", 4, 2, 5, 1))
sketch13.addConstraint(Sketcher.Constraint("Coincident", 5, 2, 6, 1))
sketch13.addConstraint(Sketcher.Constraint("Coincident", 6, 2, 7, 1))
sketch13.addConstraint(Sketcher.Constraint("Coincident", 7, 2, 4, 1))
sketch13.addConstraint(Sketcher.Constraint("Vertical", 0))
sketch13.addConstraint(Sketcher.Constraint("Horizontal", 1))
sketch13.addConstraint(Sketcher.Constraint("Vertical", 2))
sketch13.addConstraint(Sketcher.Constraint("Horizontal", 3))
sketch13.addConstraint(Sketcher.Constraint("Horizontal", 4))
sketch13.addConstraint(Sketcher.Constraint("Vertical", 5))
sketch13.addConstraint(Sketcher.Constraint("Horizontal", 6))
sketch13.addConstraint(Sketcher.Constraint("Vertical", 7))
sketch13.addConstraint(Sketcher.Constraint("DistanceX", 1, 2, 1, 1, 12.5))
sketch13.addConstraint(Sketcher.Constraint("DistanceX", 4, 1, 4, 2, 10.5))
sketch13.addConstraint(Sketcher.Constraint("DistanceY", 5, 1, 5, 2, 1.8))
sketch13.addConstraint(Sketcher.Constraint("DistanceX", 4, 2, 0, 2, 1.0))
sketch13.addConstraint(Sketcher.Constraint("DistanceY", 0, 2, 0, 1, 5.12))
sketch13.addConstraint(Sketcher.Constraint("DistanceX", -1, 1, 0, 2, 112.8))
sketch13.addConstraint(Sketcher.Constraint("DistanceY", -1, 1, 0, 2, 0.3))
sketch13.addConstraint(Sketcher.Constraint("DistanceY", -1, 1, 4, 2, 2.86))
sketch13.setExpression("Constraints[16]", "Params.sketch13_width")
sketch13.setExpression("Constraints[17]", "Params.sketch13_width2")
sketch13.setExpression("Constraints[18]", "Params.sketch13_height")
sketch13.setExpression("Constraints[20]", "Params.sketch13_height2")
pocket2 = body2.newObject("PartDesign::Pocket", "Pocket001")
pocket2.Profile = sketch13
pocket2.setExpression("Length", "Params.pocket2_length")
pocket2.Reversed = True

doc.recompute()
